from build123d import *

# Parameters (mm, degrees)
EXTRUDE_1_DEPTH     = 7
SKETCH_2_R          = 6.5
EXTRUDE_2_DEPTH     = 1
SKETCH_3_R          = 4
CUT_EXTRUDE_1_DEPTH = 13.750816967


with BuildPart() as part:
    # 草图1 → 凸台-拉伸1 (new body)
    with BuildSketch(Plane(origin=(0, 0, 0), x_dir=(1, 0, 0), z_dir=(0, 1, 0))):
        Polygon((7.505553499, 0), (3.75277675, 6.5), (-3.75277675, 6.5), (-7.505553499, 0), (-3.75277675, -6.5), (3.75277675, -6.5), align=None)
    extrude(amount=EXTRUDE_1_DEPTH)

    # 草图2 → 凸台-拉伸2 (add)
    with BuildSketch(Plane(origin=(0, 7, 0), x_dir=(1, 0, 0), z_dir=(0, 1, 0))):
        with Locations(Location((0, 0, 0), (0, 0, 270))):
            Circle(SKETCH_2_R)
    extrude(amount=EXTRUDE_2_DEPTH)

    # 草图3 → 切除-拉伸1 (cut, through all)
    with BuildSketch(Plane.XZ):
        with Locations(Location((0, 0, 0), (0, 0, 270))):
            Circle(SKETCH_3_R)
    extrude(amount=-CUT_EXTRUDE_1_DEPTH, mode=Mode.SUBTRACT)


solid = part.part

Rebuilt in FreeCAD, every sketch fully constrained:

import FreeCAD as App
import Part
import Sketcher
Q = App.Units.Quantity

doc = App.newDocument("Part")
body = doc.addObject("PartDesign::Body", "Body")

sketch1 = body.newObject("Sketcher::SketchObject", "Sketch")
sketch1.AttachmentSupport = (doc.getObject("XZ_Plane"), [""])
sketch1.MapMode = "FlatFace"
sketch1.addGeometry([
    Part.LineSegment(App.Vector(7.505553, 0, 0), App.Vector(3.752777, -6.5, 0)),
    Part.LineSegment(App.Vector(3.752777, -6.5, 0), App.Vector(-3.752777, -6.5, 0)),
    Part.LineSegment(App.Vector(-3.752777, -6.5, 0), App.Vector(-7.505553, 0, 0)),
    Part.LineSegment(App.Vector(-7.505553, 0, 0), App.Vector(-3.752777, 6.5, 0)),
    Part.LineSegment(App.Vector(-3.752777, 6.5, 0), App.Vector(3.752777, 6.5, 0)),
    Part.LineSegment(App.Vector(3.752777, 6.5, 0), App.Vector(7.505553, 0, 0)),
], False)
sketch1.addConstraint([
    Sketcher.Constraint("Coincident", 0, 2, 1, 1),
    Sketcher.Constraint("Coincident", 1, 2, 2, 1),
    Sketcher.Constraint("Coincident", 2, 2, 3, 1),
    Sketcher.Constraint("Coincident", 3, 2, 4, 1),
    Sketcher.Constraint("Coincident", 4, 2, 5, 1),
    Sketcher.Constraint("Coincident", 5, 2, 0, 1),
    Sketcher.Constraint("Horizontal", 1),
    Sketcher.Constraint("Horizontal", 4),
    Sketcher.Constraint("Symmetric", 0, 2, 3, 2, -1, 1),
    Sketcher.Constraint("Symmetric", 2, 2, 5, 2, -1, 1),
    Sketcher.Constraint("PointOnObject", 2, 2, -1),
    Sketcher.Constraint("Parallel", 2, 5),
    Sketcher.Constraint("Vertical", 1, 2, 3, 2),
    Sketcher.Constraint("Angle", 0, Q("-120 deg")),
    Sketcher.Constraint("DistanceY", 1, 2, 3, 2, Q("13 mm")),
    Sketcher.Constraint("DistanceX", 1, 2, 1, 1, Q("7.505554 mm")),
])
pad1 = body.newObject("PartDesign::Pad", "Pad")
pad1.Profile = sketch1
pad1.Length = 7
pad1.Reversed = True

sketch2 = body.newObject("Sketcher::SketchObject", "Sketch001")
sketch2.AttachmentSupport = (doc.getObject("XZ_Plane"), [""])
sketch2.MapMode = "FlatFace"
sketch2.AttachmentOffset = App.Placement(App.Vector(0, 0, -7), App.Rotation())
sketch2.addGeometry(Part.Circle(App.Vector(0, 0, 0), App.Vector(0, 0, 1), 6.5), False)
sketch2.addConstraint([
    Sketcher.Constraint("Coincident", 0, 3, -1, 1),
    Sketcher.Constraint("Diameter", 0, Q("13 mm")),
])
pad2 = body.newObject("PartDesign::Pad", "Pad001")
pad2.Profile = sketch2
pad2.Length = 1
pad2.Reversed = True

sketch3 = body.newObject("Sketcher::SketchObject", "Sketch002")
sketch3.AttachmentSupport = (doc.getObject("XZ_Plane"), [""])
sketch3.MapMode = "FlatFace"
sketch3.addGeometry(Part.Circle(App.Vector(0, 0, 0), App.Vector(0, 0, 1), 4), False)
sketch3.addConstraint([
    Sketcher.Constraint("Coincident", 0, 3, -1, 1),
    Sketcher.Constraint("Diameter", 0, Q("8 mm")),
])
pocket1 = body.newObject("PartDesign::Pocket", "Pocket")
pocket1.Profile = sketch3
pocket1.Type = "ThroughAll"

doc.recompute()
